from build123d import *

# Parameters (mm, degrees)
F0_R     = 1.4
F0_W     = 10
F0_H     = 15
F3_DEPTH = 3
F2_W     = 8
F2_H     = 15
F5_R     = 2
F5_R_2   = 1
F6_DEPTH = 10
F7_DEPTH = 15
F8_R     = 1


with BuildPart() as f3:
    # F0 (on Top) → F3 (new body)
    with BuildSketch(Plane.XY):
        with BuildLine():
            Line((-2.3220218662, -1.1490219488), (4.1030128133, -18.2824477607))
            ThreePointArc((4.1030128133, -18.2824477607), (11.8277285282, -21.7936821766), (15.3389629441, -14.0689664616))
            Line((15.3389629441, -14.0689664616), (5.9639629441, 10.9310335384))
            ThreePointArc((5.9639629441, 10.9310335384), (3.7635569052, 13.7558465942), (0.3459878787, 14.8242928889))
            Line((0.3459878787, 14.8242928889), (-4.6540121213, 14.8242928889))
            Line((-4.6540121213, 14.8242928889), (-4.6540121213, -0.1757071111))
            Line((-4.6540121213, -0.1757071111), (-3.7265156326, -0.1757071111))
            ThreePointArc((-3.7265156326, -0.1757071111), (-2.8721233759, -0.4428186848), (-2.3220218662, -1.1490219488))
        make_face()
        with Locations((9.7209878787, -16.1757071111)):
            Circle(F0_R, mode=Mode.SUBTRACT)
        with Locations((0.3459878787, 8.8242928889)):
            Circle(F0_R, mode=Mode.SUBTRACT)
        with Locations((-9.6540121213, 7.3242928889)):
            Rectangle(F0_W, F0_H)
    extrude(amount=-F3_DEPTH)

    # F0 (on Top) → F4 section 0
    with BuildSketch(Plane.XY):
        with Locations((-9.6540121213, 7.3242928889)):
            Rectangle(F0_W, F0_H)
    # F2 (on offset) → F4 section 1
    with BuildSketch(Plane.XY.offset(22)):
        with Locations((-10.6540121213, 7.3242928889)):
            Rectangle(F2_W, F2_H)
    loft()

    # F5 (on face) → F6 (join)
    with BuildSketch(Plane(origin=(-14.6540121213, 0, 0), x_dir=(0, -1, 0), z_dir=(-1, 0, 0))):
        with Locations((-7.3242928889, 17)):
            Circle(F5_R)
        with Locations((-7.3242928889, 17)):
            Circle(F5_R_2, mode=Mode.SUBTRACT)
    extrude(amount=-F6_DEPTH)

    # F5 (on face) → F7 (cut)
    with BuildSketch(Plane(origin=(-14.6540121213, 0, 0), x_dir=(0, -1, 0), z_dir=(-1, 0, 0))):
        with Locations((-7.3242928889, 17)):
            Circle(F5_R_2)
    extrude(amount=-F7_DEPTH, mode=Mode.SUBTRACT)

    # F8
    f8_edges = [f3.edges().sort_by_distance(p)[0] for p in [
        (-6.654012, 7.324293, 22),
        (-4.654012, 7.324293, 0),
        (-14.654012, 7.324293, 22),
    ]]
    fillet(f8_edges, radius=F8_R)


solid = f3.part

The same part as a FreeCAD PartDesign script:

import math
import FreeCAD as App
import Part
import Sketcher
from FreeCAD import Vector


def edges_at(feature, points):
    """Names of the edges that pass closest to the given points."""
    edges = feature.Shape.Edges
    near = lambda p: min(range(len(edges)), key=lambda i: edges[i].distToShape(Part.Vertex(*p))[0])
    return sorted({f"Edge{near(p) + 1}" for p in points})

doc = App.newDocument("Part")
body = doc.addObject("PartDesign::Body", "Body")

# Sketch on XY plane
sketch1 = doc.addObject("Sketcher::SketchObject", "Sketch")
body.addObject(sketch1)
sketch1.AttachmentSupport = (doc.XY_Plane, [""])
sketch1.MapMode = "FlatFace"
sketch1.addGeometry(Part.LineSegment(Vector(-2.322022, -1.149022, 0), Vector(4.103013, -18.282448, 0)), False)
sketch1.addGeometry(Part.ArcOfCircle(Part.Circle(Vector(9.720988, -16.175707, 0), Vector(0, 0, 1), 6), math.radians(-159.443955), math.radians(20.556045)), False)
sketch1.addGeometry(Part.LineSegment(Vector(15.338963, -14.068966, 0), Vector(5.963963, 10.931034, 0)), False)
sketch1.addGeometry(Part.ArcOfCircle(Part.Circle(Vector(0.345988, 8.824293, 0), Vector(0, 0, 1), 6), math.radians(20.556045), math.radians(90)), False)
sketch1.addGeometry(Part.LineSegment(Vector(0.345988, 14.824293, 0), Vector(-14.654012, 14.824293, 0)), False)
sketch1.addGeometry(Part.LineSegment(Vector(-14.654012, 14.824293, 0), Vector(-14.654012, -0.175707, 0)), False)
sketch1.addGeometry(Part.LineSegment(Vector(-14.654012, -0.175707, 0), Vector(-3.726516, -0.175707, 0)), False)
sketch1.addGeometry(Part.ArcOfCircle(Part.Circle(Vector(-3.726516, -1.675707, 0), Vector(0, 0, 1), 1.5), math.radians(20.556045), math.radians(90)), False)
sketch1.addGeometry(Part.Circle(Vector(9.720988, -16.175707, 0), Vector(0, 0, 1), 1.4), False)
sketch1.addGeometry(Part.Circle(Vector(0.345988, 8.824293, 0), Vector(0, 0, 1), 1.4), False)
sketch1.addConstraint(Sketcher.Constraint("Tangent", 0, 2, 1, 1))
sketch1.addConstraint(Sketcher.Constraint("Tangent", 1, 2, 2, 1))
sketch1.addConstraint(Sketcher.Constraint("Tangent", 2, 2, 3, 1))
sketch1.addConstraint(Sketcher.Constraint("Tangent", 3, 2, 4, 1))
sketch1.addConstraint(Sketcher.Constraint("Coincident", 4, 2, 5, 1))
sketch1.addConstraint(Sketcher.Constraint("Coincident", 5, 2, 6, 1))
sketch1.addConstraint(Sketcher.Constraint("Tangent", 6, 2, 7, 2))
sketch1.addConstraint(Sketcher.Constraint("Tangent", 7, 1, 0, 1))
sketch1.addConstraint(Sketcher.Constraint("Horizontal", 4))
sketch1.addConstraint(Sketcher.Constraint("Vertical", 5))
sketch1.addConstraint(Sketcher.Constraint("Horizontal", 6))
sketch1.addConstraint(Sketcher.Constraint("Coincident", 8, 3, 1, 3))
sketch1.addConstraint(Sketcher.Constraint("Coincident", 9, 3, 3, 3))
sketch1.addConstraint(Sketcher.Constraint("Equal", 1, 3))
sketch1.addConstraint(Sketcher.Constraint("Equal", 8, 9))
sketch1.addConstraint(Sketcher.Constraint("Parallel", 0, 2))
sketch1.addConstraint(Sketcher.Constraint("Equal", 4, 5))
sketch1.addConstraint(Sketcher.Constraint("Radius", 1, 6.0))
sketch1.addConstraint(Sketcher.Constraint("Diameter", 8, 2.8))
sketch1.addConstraint(Sketcher.Constraint("Radius", 7, 1.5))
sketch1.addConstraint(Sketcher.Constraint("DistanceX", 4, 2, 4, 1, 15.0))
sketch1.addConstraint(Sketcher.Constraint("DistanceY", 1, 3, 3, 3, 25.0))
sketch1.addConstraint(Sketcher.Constraint("DistanceX", 3, 3, 1, 3, 9.375))
sketch1.addConstraint(Sketcher.Constraint("DistanceX", 7, 1, -1, 1, 2.322022))
sketch1.addConstraint(Sketcher.Constraint("DistanceY", 7, 1, -1, 1, 1.149022))
pad1 = doc.addObject("PartDesign::Pad", "Pad")
body.addObject(pad1)
pad1.Profile = sketch1
pad1.Length = 3
pad1.Reversed = True

# Sketch on XY plane
sketch2 = doc.addObject("Sketcher::SketchObject", "Sketch001")
body.addObject(sketch2)
sketch2.AttachmentSupport = (doc.XY_Plane, [""])
sketch2.MapMode = "FlatFace"
sketch2.addGeometry(Part.LineSegment(Vector(-14.654012, 14.824293, 0), Vector(-14.654012, -0.175707, 0)), False)
sketch2.addGeometry(Part.LineSegment(Vector(-14.654012, -0.175707, 0), Vector(-4.654012, -0.175707, 0)), False)
sketch2.addGeometry(Part.LineSegment(Vector(-4.654012, -0.175707, 0), Vector(-4.654012, 14.824293, 0)), False)
sketch2.addGeometry(Part.LineSegment(Vector(-4.654012, 14.824293, 0), Vector(-14.654012, 14.824293, 0)), False)
sketch2.addConstraint(Sketcher.Constraint("Coincident", 0, 2, 1, 1))
sketch2.addConstraint(Sketcher.Constraint("Coincident", 1, 2, 2, 1))
sketch2.addConstraint(Sketcher.Constraint("Coincident", 2, 2, 3, 1))
sketch2.addConstraint(Sketcher.Constraint("Coincident", 3, 2, 0, 1))
sketch2.addConstraint(Sketcher.Constraint("Vertical", 0))
sketch2.addConstraint(Sketcher.Constraint("Horizontal", 1))
sketch2.addConstraint(Sketcher.Constraint("Vertical", 2))
sketch2.addConstraint(Sketcher.Constraint("Horizontal", 3))
sketch2.addConstraint(Sketcher.Constraint("DistanceX", 1, 1, 1, 2, 10.0))
sketch2.addConstraint(Sketcher.Constraint("DistanceY", 0, 2, 0, 1, 15.0))
sketch2.addConstraint(Sketcher.Constraint("DistanceX", 0, 2, -1, 1, 14.654012))
sketch2.addConstraint(Sketcher.Constraint("DistanceY", 0, 2, -1, 1, 0.175707))

# Sketch on XY plane
sketch3 = doc.addObject("Sketcher::SketchObject", "Sketch002")
body.addObject(sketch3)
sketch3.AttachmentSupport = (doc.XY_Plane, [""])
sketch3.MapMode = "FlatFace"
sketch3.AttachmentOffset = App.Placement(Vector(0, 0, 22), App.Rotation())
sketch3.addGeometry(Part.LineSegment(Vector(-14.654012, 14.824293, 0), Vector(-14.654012, -0.175707, 0)), False)
sketch3.addGeometry(Part.LineSegment(Vector(-14.654012, -0.175707, 0), Vector(-6.654012, -0.175707, 0)), False)
sketch3.addGeometry(Part.LineSegment(Vector(-6.654012, -0.175707, 0), Vector(-6.654012, 14.824293, 0)), False)
sketch3.addGeometry(Part.LineSegment(Vector(-6.654012, 14.824293, 0), Vector(-14.654012, 14.824293, 0)), False)
sketch3.addConstraint(Sketcher.Constraint("Coincident", 0, 2, 1, 1))
sketch3.addConstraint(Sketcher.Constraint("Coincident", 1, 2, 2, 1))
sketch3.addConstraint(Sketcher.Constraint("Coincident", 2, 2, 3, 1))
sketch3.addConstraint(Sketcher.Constraint("Coincident", 3, 2, 0, 1))
sketch3.addConstraint(Sketcher.Constraint("Vertical", 0))
sketch3.addConstraint(Sketcher.Constraint("Horizontal", 1))
sketch3.addConstraint(Sketcher.Constraint("Vertical", 2))
sketch3.addConstraint(Sketcher.Constraint("Horizontal", 3))
sketch3.addConstraint(Sketcher.Constraint("DistanceX", 1, 1, 1, 2, 8.0))
sketch3.addConstraint(Sketcher.Constraint("DistanceY", 0, 2, 0, 1, 15.0))
sketch3.addConstraint(Sketcher.Constraint("DistanceX", 0, 2, -1, 1, 14.654012))
sketch3.addConstraint(Sketcher.Constraint("DistanceY", 0, 2, -1, 1, 0.175707))

additiveloft = doc.addObject("PartDesign::AdditiveLoft", "AdditiveLoft")
body.addObject(additiveloft)
additiveloft.Profile = sketch2
additiveloft.Sections = [sketch3]

# Sketch on YZ plane
sketch4 = doc.addObject("Sketcher::SketchObject", "Sketch003")
body.addObject(sketch4)
sketch4.AttachmentSupport = (doc.YZ_Plane, [""])
sketch4.MapMode = "FlatFace"
sketch4.AttachmentOffset = App.Placement(Vector(0, 0, -14.654012), App.Rotation())
sketch4.addGeometry(Part.Circle(Vector(7.324293, 17, 0), Vector(0, 0, 1), 2), False)
sketch4.addGeometry(Part.Circle(Vector(7.324293, 17, 0), Vector(0, 0, 1), 1), False)
sketch4.addConstraint(Sketcher.Constraint("Coincident", 1, 3, 0, 3))
sketch4.addConstraint(Sketcher.Constraint("Diameter", 0, 4.0))
sketch4.addConstraint(Sketcher.Constraint("Diameter", 1, 2.0))
sketch4.addConstraint(Sketcher.Constraint("DistanceY", -1, 1, 0, 3, 17.0))
sketch4.addConstraint(Sketcher.Constraint("DistanceX", -1, 1, 0, 3, 7.324293))
pad2 = doc.addObject("PartDesign::Pad", "Pad001")
body.addObject(pad2)
pad2.Profile = sketch4
pad2.Length = 10

# Sketch on YZ plane
sketch5 = doc.addObject("Sketcher::SketchObject", "Sketch004")
body.addObject(sketch5)
sketch5.AttachmentSupport = (doc.YZ_Plane, [""])
sketch5.MapMode = "FlatFace"
sketch5.AttachmentOffset = App.Placement(Vector(0, 0, -14.654012), App.Rotation())
sketch5.addGeometry(Part.Circle(Vector(7.324293, 17, 0), Vector(0, 0, 1), 1), False)
sketch5.addConstraint(Sketcher.Constraint("Diameter", 0, 2.0))
sketch5.addConstraint(Sketcher.Constraint("DistanceY", -1, 1, 0, 3, 17.0))
sketch5.addConstraint(Sketcher.Constraint("DistanceX", -1, 1, 0, 3, 7.324293))
pocket1 = doc.addObject("PartDesign::Pocket", "Pocket")
body.addObject(pocket1)
pocket1.Profile = sketch5
pocket1.Length = 15
pocket1.Reversed = True
doc.recompute()

fillet = doc.addObject("PartDesign::Fillet", "Fillet")
body.addObject(fillet)
fillet.Base = (pocket1, edges_at(pocket1, [(-6.654, 7.324, 22), (-4.654, 7.324, 0), (-14.654, 7.324, 22)]))
fillet.Radius = 1

doc.recompute()
